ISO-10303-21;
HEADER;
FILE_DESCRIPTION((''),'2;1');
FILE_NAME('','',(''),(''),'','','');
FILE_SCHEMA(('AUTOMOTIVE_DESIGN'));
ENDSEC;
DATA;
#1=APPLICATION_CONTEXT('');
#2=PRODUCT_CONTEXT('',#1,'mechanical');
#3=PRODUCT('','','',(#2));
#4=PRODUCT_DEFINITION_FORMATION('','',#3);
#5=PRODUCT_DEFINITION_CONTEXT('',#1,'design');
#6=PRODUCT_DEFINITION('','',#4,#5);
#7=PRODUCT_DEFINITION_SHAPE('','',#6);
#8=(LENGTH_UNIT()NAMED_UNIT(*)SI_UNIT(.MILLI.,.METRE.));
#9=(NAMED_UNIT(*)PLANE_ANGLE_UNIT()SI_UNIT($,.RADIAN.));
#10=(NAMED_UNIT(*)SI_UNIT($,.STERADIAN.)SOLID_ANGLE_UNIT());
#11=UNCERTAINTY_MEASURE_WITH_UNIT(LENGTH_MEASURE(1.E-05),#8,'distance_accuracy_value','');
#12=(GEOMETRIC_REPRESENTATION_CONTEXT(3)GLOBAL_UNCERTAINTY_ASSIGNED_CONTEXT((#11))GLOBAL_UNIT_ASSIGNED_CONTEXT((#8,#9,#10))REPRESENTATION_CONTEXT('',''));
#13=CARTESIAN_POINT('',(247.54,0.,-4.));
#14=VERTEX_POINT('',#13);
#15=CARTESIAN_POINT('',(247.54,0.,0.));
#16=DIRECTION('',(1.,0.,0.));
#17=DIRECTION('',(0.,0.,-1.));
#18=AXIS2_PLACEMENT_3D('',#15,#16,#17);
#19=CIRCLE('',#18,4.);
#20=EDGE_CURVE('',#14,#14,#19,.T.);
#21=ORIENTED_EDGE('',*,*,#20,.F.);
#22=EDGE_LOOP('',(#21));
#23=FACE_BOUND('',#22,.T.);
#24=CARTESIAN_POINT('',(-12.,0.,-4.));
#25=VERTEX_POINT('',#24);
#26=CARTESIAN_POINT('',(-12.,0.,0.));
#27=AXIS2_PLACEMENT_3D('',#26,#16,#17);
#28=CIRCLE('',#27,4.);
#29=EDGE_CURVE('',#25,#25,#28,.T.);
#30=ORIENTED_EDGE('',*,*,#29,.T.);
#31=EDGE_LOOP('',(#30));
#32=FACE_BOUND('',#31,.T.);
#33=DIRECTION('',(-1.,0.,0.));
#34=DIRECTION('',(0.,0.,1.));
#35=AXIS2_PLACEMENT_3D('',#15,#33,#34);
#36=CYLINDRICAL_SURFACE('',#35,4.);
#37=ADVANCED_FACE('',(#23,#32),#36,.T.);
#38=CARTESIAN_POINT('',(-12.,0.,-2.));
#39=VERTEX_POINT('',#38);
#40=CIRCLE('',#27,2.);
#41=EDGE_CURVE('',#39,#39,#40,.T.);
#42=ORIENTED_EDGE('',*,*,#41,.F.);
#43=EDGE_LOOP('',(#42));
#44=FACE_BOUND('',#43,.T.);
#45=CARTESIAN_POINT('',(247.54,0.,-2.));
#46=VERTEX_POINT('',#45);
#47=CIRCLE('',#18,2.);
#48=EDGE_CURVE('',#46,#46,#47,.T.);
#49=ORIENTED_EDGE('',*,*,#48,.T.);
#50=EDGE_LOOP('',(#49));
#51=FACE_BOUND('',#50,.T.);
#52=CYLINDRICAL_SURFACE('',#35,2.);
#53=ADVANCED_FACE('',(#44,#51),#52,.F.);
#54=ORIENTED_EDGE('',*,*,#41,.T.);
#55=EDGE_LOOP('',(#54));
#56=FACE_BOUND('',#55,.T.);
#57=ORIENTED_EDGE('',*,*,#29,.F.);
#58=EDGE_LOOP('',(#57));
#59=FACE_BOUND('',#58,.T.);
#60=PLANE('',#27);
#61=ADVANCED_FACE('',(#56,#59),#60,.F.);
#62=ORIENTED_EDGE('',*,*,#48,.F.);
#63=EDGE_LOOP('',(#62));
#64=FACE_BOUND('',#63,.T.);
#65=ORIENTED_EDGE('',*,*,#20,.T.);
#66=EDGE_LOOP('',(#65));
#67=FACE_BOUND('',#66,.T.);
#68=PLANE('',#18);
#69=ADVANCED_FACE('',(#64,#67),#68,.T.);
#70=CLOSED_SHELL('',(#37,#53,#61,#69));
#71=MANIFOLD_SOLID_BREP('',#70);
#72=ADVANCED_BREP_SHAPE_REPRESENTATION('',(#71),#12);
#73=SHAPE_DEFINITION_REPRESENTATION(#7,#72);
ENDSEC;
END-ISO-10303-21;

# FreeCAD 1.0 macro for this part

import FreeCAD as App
import Part
import Sketcher

V = App.Vector
Q = App.Units.Quantity

doc = App.newDocument("Part")
body = doc.addObject("PartDesign::Body", "Body")

# Sketch on YZ plane
sketch1 = body.newObject("Sketcher::SketchObject", "Sketch")
sketch1.AttachmentSupport = (doc.getObject("YZ_Plane"), [""])
sketch1.MapMode = "FlatFace"
sketch1.addGeometry([
    Part.Circle(V(0, 0, 0), V(0, 0, 1), 4),
    Part.Circle(V(0, 0, 0), V(0, 0, 1), 2),
], False)
sketch1.addConstraint([
    Sketcher.Constraint("Coincident", 0, 3, -1, 1),
    Sketcher.Constraint("Coincident", 1, 3, -1, 1),
    Sketcher.Constraint("Diameter", 0, Q("8 mm")),
    Sketcher.Constraint("Diameter", 1, Q("4 mm")),
])
pad1 = body.newObject("PartDesign::Pad", "Pad")
pad1.Profile = sketch1
pad1.Type = "TwoLengths"
pad1.Length = 247.54
pad1.Length2 = 12

doc.recompute()
